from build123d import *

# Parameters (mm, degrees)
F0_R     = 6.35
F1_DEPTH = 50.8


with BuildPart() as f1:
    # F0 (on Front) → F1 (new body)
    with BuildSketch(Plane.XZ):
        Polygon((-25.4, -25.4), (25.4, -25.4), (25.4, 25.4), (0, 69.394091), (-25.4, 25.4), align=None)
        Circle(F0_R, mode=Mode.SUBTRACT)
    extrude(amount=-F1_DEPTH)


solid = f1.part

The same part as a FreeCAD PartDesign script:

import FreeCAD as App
import Part
import Sketcher
Q = App.Units.Quantity

doc = App.newDocument("Part")
body = doc.addObject("PartDesign::Body", "Body")

sketch1 = body.newObject("Sketcher::SketchObject", "Sketch")
sketch1.AttachmentSupport = (doc.getObject("XZ_Plane"), [""])
sketch1.MapMode = "FlatFace"
sketch1.addGeometry(Part.LineSegment(App.Vector(-25, -25, 0), App.Vector(25, -25, 0)), False)
sketch1.addGeometry(Part.LineSegment(App.Vector(25, -25, 0), App.Vector(25, 25, 0)), False)
sketch1.addGeometry(Part.LineSegment(App.Vector(25, 25, 0), App.Vector(0, 69, 0)), False)
sketch1.addGeometry(Part.LineSegment(App.Vector(0, 69, 0), App.Vector(-25, 25, 0)), False)
sketch1.addGeometry(Part.LineSegment(App.Vector(-25, 25, 0), App.Vector(-25, -25, 0)), False)
sketch1.addGeometry(Part.Circle(App.Vector(0, 0, 0), App.Vector(0, 0, 1), 6), False)
sketch1.addConstraint(Sketcher.Constraint("Coincident", 0, 2, 1, 1))
sketch1.addConstraint(Sketcher.Constraint("Coincident", 1, 2, 2, 1))
sketch1.addConstraint(Sketcher.Constraint("Coincident", 2, 2, 3, 1))
sketch1.addConstraint(Sketcher.Constraint("Coincident", 3, 2, 4, 1))
sketch1.addConstraint(Sketcher.Constraint("Coincident", 4, 2, 0, 1))
sketch1.addConstraint(Sketcher.Constraint("Horizontal", 0))
sketch1.addConstraint(Sketcher.Constraint("Vertical", 1))
sketch1.addConstraint(Sketcher.Constraint("Vertical", 4))
sketch1.addConstraint(Sketcher.Constraint("Coincident", 5, 3, -1, 1))
sketch1.addConstraint(Sketcher.Constraint("Symmetric", 0, 2, 3, 2, -1, 1))
sketch1.addConstraint(Sketcher.Constraint("PointOnObject", 2, 2, -2))
sketch1.addConstraint(Sketcher.Constraint("Horizontal", 1, 2, 3, 2))
sketch1.addConstraint(Sketcher.Constraint("Equal", 0, 1))
sketch1.addConstraint(Sketcher.Constraint("Diameter", 5, Q("0.5 in")))
sketch1.addConstraint(Sketcher.Constraint("DistanceX", 0, 1, 0, 2, Q("2 in")))
sketch1.addConstraint(Sketcher.Constraint("Distance", 2, Q("2 in")))
pad1 = body.newObject("PartDesign::Pad", "Pad")
pad1.Profile = sketch1
pad1.Length = Q("2 in")
pad1.Reversed = True

doc.recompute()
